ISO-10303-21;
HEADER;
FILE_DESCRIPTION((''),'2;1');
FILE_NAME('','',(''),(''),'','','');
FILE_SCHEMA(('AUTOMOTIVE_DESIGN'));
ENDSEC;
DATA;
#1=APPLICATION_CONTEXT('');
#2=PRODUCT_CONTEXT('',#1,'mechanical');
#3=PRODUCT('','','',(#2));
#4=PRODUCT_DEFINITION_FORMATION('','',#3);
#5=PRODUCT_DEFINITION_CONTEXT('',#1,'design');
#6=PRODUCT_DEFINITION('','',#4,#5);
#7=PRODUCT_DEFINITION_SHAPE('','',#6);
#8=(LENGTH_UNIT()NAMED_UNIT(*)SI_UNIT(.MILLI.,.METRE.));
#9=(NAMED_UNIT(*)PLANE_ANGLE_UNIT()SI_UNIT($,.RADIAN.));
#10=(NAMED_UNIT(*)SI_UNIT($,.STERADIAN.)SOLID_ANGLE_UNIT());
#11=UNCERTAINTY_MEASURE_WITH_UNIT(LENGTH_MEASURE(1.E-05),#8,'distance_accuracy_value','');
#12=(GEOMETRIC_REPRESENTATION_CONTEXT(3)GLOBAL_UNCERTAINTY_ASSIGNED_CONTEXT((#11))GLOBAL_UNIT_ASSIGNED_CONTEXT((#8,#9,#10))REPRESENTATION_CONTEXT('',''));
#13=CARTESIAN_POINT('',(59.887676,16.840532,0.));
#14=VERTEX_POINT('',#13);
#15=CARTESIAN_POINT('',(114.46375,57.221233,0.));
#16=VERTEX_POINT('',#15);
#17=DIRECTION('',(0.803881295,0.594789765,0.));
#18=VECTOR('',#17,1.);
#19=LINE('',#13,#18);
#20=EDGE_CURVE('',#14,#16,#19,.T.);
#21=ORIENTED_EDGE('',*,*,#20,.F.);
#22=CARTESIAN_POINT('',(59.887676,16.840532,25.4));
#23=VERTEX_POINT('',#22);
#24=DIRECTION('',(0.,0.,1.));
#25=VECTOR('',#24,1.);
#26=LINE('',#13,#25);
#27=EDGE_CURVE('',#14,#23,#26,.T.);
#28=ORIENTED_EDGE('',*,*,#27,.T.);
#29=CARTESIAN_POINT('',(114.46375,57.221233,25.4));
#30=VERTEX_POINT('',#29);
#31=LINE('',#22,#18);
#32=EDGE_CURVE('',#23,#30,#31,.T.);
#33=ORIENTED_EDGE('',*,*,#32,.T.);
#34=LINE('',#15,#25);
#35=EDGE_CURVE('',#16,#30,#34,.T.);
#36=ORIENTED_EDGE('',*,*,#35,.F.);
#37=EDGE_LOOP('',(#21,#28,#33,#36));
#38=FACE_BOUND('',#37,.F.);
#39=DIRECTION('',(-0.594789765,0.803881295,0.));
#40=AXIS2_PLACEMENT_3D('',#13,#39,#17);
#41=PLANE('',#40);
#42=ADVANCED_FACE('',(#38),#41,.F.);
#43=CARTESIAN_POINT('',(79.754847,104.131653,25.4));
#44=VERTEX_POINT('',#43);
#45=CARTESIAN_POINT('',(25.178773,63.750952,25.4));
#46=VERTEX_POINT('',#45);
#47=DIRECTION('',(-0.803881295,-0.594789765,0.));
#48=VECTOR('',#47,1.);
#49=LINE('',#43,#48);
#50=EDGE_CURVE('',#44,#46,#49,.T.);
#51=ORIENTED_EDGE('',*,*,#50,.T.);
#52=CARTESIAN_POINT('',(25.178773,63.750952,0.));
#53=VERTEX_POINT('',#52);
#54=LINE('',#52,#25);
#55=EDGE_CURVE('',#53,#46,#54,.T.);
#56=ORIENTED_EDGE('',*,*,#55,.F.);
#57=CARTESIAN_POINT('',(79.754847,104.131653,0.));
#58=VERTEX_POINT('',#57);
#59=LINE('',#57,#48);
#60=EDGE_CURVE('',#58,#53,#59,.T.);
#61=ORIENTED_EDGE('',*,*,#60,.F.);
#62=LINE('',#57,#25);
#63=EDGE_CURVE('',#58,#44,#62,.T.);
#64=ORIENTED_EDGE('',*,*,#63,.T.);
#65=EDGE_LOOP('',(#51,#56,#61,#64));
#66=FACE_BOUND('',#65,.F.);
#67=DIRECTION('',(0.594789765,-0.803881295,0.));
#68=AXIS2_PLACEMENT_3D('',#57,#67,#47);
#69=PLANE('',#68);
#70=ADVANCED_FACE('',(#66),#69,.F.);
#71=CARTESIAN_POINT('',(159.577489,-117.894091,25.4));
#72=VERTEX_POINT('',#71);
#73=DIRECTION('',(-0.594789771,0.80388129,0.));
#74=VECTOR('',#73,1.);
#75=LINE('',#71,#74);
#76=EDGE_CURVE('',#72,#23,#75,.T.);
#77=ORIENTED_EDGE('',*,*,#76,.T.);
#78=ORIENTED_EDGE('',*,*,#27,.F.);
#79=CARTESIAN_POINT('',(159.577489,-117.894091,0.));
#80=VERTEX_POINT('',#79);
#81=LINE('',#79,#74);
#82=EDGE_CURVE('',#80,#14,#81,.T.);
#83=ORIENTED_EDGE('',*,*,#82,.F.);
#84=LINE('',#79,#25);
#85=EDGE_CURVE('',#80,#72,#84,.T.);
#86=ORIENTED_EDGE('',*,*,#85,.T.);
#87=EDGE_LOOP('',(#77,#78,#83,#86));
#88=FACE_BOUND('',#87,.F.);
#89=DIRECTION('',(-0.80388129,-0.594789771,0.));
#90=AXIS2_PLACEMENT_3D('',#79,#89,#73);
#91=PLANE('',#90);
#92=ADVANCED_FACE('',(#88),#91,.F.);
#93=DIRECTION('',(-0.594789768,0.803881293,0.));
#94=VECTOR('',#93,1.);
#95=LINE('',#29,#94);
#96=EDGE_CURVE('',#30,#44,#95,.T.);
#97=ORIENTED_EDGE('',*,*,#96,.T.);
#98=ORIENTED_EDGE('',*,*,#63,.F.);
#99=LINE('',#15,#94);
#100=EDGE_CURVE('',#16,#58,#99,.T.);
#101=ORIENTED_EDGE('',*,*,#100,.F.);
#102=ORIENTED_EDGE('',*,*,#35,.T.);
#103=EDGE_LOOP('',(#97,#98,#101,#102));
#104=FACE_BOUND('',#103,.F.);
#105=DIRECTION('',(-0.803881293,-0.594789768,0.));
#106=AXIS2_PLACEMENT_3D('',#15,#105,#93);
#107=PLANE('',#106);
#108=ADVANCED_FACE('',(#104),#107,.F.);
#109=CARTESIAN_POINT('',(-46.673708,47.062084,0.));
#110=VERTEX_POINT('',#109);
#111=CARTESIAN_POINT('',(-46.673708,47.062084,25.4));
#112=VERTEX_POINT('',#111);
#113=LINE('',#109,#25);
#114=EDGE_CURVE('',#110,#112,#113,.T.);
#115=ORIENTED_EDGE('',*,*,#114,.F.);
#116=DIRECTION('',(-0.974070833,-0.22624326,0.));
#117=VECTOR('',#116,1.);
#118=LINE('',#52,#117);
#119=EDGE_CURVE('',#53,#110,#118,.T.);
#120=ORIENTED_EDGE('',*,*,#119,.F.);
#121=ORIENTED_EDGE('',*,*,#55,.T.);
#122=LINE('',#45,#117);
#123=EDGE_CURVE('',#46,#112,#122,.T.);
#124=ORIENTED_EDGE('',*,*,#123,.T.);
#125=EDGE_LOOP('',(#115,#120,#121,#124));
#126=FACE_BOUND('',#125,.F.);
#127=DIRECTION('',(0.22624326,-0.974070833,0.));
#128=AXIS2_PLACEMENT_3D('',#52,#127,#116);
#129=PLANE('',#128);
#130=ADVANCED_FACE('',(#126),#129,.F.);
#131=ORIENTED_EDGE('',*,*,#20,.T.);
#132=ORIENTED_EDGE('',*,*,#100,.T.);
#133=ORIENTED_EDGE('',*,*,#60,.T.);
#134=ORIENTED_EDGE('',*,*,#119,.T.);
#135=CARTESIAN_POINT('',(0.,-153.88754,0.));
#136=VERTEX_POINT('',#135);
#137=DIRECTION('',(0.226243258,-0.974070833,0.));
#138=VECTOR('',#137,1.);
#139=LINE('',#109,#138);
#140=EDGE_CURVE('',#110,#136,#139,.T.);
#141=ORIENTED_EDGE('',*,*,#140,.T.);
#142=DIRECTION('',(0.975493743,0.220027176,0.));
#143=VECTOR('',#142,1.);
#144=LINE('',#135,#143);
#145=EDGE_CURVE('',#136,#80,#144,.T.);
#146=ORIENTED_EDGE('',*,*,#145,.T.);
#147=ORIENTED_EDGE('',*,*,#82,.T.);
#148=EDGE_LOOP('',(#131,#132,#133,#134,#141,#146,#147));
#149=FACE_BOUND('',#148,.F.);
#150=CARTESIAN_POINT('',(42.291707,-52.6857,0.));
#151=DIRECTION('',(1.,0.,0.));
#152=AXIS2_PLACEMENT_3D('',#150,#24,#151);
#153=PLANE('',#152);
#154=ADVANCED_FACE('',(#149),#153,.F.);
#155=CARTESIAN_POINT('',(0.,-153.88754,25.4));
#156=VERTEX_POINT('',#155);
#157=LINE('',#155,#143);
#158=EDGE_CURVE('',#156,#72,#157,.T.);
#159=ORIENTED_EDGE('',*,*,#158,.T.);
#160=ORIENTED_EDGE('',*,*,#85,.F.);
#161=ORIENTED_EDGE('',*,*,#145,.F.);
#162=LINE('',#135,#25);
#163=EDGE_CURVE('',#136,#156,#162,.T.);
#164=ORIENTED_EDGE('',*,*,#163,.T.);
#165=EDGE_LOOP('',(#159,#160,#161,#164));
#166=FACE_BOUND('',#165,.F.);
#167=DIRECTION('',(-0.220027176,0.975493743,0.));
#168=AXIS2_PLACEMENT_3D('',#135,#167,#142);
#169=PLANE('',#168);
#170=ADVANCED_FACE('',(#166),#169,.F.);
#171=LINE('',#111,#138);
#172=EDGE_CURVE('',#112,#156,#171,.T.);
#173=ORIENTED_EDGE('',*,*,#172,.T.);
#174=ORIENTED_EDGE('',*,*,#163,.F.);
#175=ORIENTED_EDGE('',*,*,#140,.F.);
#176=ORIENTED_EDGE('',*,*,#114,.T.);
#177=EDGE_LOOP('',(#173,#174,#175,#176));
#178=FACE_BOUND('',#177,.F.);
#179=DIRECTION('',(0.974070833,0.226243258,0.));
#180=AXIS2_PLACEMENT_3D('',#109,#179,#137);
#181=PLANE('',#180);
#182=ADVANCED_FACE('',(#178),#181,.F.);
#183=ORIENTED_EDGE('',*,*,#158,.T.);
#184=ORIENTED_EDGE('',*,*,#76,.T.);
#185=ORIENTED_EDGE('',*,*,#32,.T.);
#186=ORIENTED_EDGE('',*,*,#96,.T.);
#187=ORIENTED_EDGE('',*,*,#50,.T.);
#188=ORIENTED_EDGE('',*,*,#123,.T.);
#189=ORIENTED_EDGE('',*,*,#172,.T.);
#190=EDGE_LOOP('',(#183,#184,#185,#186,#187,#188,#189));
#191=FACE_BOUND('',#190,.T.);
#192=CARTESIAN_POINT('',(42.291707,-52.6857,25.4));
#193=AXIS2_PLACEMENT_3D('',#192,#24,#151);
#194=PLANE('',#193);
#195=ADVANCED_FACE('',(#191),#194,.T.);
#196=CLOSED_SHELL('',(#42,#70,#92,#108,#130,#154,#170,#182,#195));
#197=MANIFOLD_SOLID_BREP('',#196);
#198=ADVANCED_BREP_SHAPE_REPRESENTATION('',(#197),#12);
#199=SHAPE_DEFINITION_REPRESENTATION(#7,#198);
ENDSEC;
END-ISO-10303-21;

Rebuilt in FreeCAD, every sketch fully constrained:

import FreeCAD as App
import Part
import Sketcher

V = App.Vector
Q = App.Units.Quantity

doc = App.newDocument("Part")
body = doc.addObject("PartDesign::Body", "Body")

# Sketch on XY plane
sketch1 = body.newObject("Sketcher::SketchObject", "Sketch")
sketch1.AttachmentSupport = (doc.getObject("XY_Plane"), [""])
sketch1.MapMode = "FlatFace"
sketch1.addGeometry(Part.LineSegment(V(-46.673708, 47.062084, 0), V(0, -153.88754, 0)), False)
sketch1.addGeometry(Part.LineSegment(V(0, -153.88754, 0), V(159.577489, -117.894091, 0)), False)
sketch1.addGeometry(Part.LineSegment(V(159.577489, -117.894091, 0), V(59.887676, 16.840532, 0)), False)
sketch1.addGeometry(Part.LineSegment(V(59.887676, 16.840532, 0), V(114.46375, 57.221233, 0)), False)
sketch1.addGeometry(Part.LineSegment(V(114.46375, 57.221233, 0), V(79.754847, 104.131653, 0)), False)
sketch1.addGeometry(Part.LineSegment(V(79.754847, 104.131653, 0), V(25.178773, 63.750952, 0)), False)
sketch1.addGeometry(Part.LineSegment(V(25.178773, 63.750952, 0), V(-46.673708, 47.062084, 0)), False)
sketch1.addConstraint(Sketcher.Constraint("Coincident", 0, 2, 1, 1))
sketch1.addConstraint(Sketcher.Constraint("Coincident", 1, 2, 2, 1))
sketch1.addConstraint(Sketcher.Constraint("Coincident", 2, 2, 3, 1))
sketch1.addConstraint(Sketcher.Constraint("Coincident", 3, 2, 4, 1))
sketch1.addConstraint(Sketcher.Constraint("Coincident", 4, 2, 5, 1))
sketch1.addConstraint(Sketcher.Constraint("Coincident", 5, 2, 6, 1))
sketch1.addConstraint(Sketcher.Constraint("Coincident", 6, 2, 0, 1))
sketch1.addConstraint(Sketcher.Constraint("PointOnObject", 0, 2, -2))
sketch1.addConstraint(Sketcher.Constraint("Perpendicular", 2, 3))
sketch1.addConstraint(Sketcher.Constraint("Perpendicular", 3, 4))
sketch1.addConstraint(Sketcher.Constraint("Perpendicular", 4, 5))
sketch1.addConstraint(Sketcher.Constraint("Perpendicular", 0, 6))
sketch1.addConstraint(Sketcher.Constraint("Equal", 3, 5))
sketch1.addConstraint(Sketcher.Constraint("DistanceY", 2, 2, 3, 2, 40.380701))
sketch1.addConstraint(Sketcher.Constraint("Distance", 0, 206.298779))
sketch1.addConstraint(Sketcher.Constraint("Distance", 1, 163.586379))
sketch1.addConstraint(Sketcher.Constraint("Distance", 4, 58.354909))
sketch1.addConstraint(Sketcher.Constraint("Distance", 6, 73.76515))
sketch1.addConstraint(Sketcher.Constraint("DistanceY", 0, 2, -1, 1, 153.88754))
sketch1.addConstraint(Sketcher.Constraint("DistanceX", -1, 1, 1, 2, 159.577489))
sketch1.addConstraint(Sketcher.Constraint("DistanceY", -1, 1, 2, 2, 16.840532))
pad1 = body.newObject("PartDesign::Pad", "Pad")
pad1.Profile = sketch1
pad1.Length = Q("1 in")

doc.recompute()
